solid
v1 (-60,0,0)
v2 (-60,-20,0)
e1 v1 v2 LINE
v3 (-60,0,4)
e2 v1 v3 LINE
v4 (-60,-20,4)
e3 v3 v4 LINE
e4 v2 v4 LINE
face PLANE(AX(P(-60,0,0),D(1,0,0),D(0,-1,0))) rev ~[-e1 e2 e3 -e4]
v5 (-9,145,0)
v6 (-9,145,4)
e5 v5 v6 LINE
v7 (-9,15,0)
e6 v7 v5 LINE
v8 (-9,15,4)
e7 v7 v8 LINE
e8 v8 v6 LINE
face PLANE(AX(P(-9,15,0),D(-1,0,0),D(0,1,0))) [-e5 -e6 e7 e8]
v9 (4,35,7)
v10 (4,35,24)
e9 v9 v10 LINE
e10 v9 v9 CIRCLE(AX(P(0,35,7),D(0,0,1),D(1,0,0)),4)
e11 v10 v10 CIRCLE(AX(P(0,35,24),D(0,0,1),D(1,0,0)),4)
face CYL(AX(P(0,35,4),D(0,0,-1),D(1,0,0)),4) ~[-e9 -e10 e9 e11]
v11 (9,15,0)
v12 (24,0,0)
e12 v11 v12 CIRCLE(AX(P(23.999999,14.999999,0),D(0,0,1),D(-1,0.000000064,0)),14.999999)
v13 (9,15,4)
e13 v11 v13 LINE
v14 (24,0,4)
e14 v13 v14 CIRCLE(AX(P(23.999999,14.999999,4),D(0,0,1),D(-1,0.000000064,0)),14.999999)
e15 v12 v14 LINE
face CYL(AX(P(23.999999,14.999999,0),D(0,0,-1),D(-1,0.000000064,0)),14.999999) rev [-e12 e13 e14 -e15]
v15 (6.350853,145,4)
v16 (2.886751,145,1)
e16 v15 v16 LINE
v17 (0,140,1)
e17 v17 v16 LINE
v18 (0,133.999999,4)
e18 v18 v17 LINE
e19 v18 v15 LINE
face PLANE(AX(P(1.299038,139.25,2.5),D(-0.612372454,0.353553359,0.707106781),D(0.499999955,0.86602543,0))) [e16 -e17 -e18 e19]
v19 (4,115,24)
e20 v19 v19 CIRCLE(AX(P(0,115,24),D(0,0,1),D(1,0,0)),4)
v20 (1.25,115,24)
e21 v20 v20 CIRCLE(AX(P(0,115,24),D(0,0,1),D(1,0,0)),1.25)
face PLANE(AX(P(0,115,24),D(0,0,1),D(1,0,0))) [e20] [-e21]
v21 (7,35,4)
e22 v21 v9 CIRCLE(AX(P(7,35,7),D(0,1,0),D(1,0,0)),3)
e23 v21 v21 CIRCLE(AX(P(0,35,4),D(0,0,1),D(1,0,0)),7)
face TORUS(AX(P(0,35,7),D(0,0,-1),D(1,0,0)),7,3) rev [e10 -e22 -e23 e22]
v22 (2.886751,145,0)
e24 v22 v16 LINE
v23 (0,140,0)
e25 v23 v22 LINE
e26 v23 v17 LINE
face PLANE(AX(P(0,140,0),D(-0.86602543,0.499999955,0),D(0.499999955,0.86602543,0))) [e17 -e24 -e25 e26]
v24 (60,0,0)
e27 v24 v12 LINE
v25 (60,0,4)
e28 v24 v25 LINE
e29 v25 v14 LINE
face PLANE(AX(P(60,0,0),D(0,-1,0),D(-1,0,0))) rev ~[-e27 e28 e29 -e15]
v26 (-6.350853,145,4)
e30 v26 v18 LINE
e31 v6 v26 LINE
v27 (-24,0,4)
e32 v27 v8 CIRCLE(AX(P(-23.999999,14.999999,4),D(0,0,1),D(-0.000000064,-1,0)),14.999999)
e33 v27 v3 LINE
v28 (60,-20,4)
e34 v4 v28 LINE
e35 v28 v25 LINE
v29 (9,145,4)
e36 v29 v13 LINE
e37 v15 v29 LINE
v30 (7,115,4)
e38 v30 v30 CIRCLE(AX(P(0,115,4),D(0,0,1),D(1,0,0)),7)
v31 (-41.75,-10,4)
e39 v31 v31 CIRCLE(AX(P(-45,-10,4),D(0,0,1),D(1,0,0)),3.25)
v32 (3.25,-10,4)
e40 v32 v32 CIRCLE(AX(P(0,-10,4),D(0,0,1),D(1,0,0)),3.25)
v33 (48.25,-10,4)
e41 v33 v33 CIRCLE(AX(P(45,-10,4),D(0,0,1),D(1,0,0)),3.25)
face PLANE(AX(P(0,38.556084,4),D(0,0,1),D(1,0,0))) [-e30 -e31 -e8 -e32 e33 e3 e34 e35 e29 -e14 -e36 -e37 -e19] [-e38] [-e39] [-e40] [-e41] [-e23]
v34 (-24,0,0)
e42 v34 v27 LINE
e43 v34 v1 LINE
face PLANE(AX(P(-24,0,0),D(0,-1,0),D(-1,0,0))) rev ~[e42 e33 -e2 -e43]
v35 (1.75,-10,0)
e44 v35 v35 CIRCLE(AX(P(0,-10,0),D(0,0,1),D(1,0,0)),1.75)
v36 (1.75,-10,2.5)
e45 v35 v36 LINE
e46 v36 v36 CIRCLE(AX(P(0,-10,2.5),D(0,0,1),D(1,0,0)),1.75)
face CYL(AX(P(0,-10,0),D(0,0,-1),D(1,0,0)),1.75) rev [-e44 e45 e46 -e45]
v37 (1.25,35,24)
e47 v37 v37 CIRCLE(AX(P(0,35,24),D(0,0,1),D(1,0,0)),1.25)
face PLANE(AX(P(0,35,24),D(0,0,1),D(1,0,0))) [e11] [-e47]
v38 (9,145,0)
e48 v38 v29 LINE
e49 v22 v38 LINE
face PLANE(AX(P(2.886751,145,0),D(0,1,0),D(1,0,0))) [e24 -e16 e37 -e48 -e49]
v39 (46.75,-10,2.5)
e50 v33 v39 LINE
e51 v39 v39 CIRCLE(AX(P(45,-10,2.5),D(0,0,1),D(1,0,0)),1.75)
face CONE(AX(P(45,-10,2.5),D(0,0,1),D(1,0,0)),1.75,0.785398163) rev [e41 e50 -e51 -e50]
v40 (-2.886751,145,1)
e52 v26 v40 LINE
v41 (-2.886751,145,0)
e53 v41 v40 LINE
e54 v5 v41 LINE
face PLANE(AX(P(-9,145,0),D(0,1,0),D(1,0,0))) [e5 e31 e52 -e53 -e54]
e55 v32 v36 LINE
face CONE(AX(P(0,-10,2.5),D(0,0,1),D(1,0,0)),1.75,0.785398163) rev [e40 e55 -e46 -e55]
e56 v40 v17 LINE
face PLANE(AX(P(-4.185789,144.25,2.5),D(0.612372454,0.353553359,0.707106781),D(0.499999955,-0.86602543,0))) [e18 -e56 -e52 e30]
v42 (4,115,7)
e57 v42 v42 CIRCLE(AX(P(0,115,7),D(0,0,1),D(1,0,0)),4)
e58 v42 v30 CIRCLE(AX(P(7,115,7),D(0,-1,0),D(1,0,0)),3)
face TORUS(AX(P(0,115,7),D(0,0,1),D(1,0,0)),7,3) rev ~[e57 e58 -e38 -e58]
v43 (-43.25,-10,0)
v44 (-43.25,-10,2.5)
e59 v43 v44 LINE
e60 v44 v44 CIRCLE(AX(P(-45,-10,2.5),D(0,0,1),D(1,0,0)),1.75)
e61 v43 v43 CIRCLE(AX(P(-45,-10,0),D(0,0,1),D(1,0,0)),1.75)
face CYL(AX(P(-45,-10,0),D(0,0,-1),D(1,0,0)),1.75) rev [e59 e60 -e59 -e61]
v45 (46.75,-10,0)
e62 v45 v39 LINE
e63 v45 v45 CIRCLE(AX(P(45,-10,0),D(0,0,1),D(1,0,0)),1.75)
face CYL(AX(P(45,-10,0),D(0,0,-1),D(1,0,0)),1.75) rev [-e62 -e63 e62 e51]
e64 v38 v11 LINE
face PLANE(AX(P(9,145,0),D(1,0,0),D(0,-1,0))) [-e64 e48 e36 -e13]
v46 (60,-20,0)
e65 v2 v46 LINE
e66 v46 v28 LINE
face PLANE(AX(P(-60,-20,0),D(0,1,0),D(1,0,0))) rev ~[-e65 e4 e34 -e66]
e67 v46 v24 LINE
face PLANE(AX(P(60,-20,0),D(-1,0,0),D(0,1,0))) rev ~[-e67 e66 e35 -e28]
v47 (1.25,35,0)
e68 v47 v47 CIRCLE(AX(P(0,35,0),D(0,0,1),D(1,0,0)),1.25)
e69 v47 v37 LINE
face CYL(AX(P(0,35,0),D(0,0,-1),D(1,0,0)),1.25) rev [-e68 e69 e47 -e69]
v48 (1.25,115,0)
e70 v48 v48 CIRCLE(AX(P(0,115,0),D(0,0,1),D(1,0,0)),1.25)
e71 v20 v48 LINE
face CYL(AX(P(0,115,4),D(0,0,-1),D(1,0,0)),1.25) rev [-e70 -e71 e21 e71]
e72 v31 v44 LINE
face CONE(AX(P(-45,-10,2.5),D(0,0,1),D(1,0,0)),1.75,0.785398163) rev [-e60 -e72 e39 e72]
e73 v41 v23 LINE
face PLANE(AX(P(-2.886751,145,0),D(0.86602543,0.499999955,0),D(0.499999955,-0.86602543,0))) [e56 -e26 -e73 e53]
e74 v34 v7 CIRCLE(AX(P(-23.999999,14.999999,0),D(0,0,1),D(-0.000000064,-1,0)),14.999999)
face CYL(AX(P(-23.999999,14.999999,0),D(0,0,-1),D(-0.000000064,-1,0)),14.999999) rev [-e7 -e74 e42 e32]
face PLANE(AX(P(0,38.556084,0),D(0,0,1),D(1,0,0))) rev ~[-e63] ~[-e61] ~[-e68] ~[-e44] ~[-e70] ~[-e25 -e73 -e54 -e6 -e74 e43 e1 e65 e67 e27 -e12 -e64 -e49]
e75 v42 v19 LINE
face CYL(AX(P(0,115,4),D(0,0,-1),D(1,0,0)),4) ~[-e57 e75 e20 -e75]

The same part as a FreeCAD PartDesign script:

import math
import FreeCAD as App
import Part
import Sketcher

V = App.Vector
Q = App.Units.Quantity


def edges_at(feature, points):
    """Names of the edges that pass closest to the given points."""
    edges = feature.Shape.Edges
    near = lambda p: min(range(len(edges)), key=lambda i: edges[i].distToShape(Part.Vertex(*p))[0])
    return sorted({f"Edge{near(p) + 1}" for p in points})

doc = App.newDocument("Part")
body = doc.addObject("PartDesign::Body", "Body")

# Sketch on XY plane
sketch1 = body.newObject("Sketcher::SketchObject", "Sketch")
sketch1.AttachmentSupport = (doc.getObject("XY_Plane"), [""])
sketch1.MapMode = "FlatFace"
sketch1.addGeometry(Part.LineSegment(V(-24, 0, 0), V(-60, 0, 0)), False)
sketch1.addGeometry(Part.LineSegment(V(-60, 0, 0), V(-60, -20, 0)), False)
sketch1.addGeometry(Part.LineSegment(V(-60, -20, 0), V(60, -20, 0)), False)
sketch1.addGeometry(Part.LineSegment(V(60, -20, 0), V(60, 0, 0)), False)
sketch1.addGeometry(Part.LineSegment(V(60, 0, 0), V(24, 0, 0)), False)
sketch1.addGeometry(Part.ArcOfCircle(Part.Circle(V(24, 15, 0), V(0, 0, 1), 15), math.radians(180), math.radians(270)), False)
sketch1.addGeometry(Part.LineSegment(V(9, 15, 0), V(9, 145, 0)), False)
sketch1.addGeometry(Part.LineSegment(V(9, 145, 0), V(2.9, 145, 0)), False)
sketch1.addGeometry(Part.LineSegment(V(2.9, 145, 0), V(0, 140, 0)), False)
sketch1.addGeometry(Part.LineSegment(V(0, 140, 0), V(-2.9, 145, 0)), False)
sketch1.addGeometry(Part.LineSegment(V(-2.9, 145, 0), V(-9, 145, 0)), False)
sketch1.addGeometry(Part.LineSegment(V(-9, 145, 0), V(-9, 15, 0)), False)
sketch1.addGeometry(Part.ArcOfCircle(Part.Circle(V(-24, 15, 0), V(0, 0, 1), 15), math.radians(-90), math.radians(0)), False)
sketch1.addGeometry(Part.Circle(V(-45, -10, 0), V(0, 0, 1), 1.8), False)
sketch1.addGeometry(Part.Circle(V(0, -10, 0), V(0, 0, 1), 1.8), False)
sketch1.addGeometry(Part.Circle(V(0, 35, 0), V(0, 0, 1), 1.2), False)
sketch1.addGeometry(Part.Circle(V(45, -10, 0), V(0, 0, 1), 1.8), False)
sketch1.addGeometry(Part.Circle(V(0, 115, 0), V(0, 0, 1), 1.2), False)
sketch1.addConstraint(Sketcher.Constraint("Coincident", 0, 2, 1, 1))
sketch1.addConstraint(Sketcher.Constraint("Coincident", 1, 2, 2, 1))
sketch1.addConstraint(Sketcher.Constraint("Coincident", 2, 2, 3, 1))
sketch1.addConstraint(Sketcher.Constraint("Coincident", 3, 2, 4, 1))
sketch1.addConstraint(Sketcher.Constraint("Tangent", 4, 2, 5, 2))
sketch1.addConstraint(Sketcher.Constraint("Tangent", 5, 1, 6, 1))
sketch1.addConstraint(Sketcher.Constraint("Coincident", 6, 2, 7, 1))
sketch1.addConstraint(Sketcher.Constraint("Coincident", 7, 2, 8, 1))
sketch1.addConstraint(Sketcher.Constraint("Coincident", 8, 2, 9, 1))
sketch1.addConstraint(Sketcher.Constraint("Coincident", 9, 2, 10, 1))
sketch1.addConstraint(Sketcher.Constraint("Coincident", 10, 2, 11, 1))
sketch1.addConstraint(Sketcher.Constraint("Tangent", 11, 2, 12, 2))
sketch1.addConstraint(Sketcher.Constraint("Tangent", 12, 1, 0, 1))
sketch1.addConstraint(Sketcher.Constraint("Horizontal", 0))
sketch1.addConstraint(Sketcher.Constraint("Vertical", 1))
sketch1.addConstraint(Sketcher.Constraint("Horizontal", 2))
sketch1.addConstraint(Sketcher.Constraint("Vertical", 3))
sketch1.addConstraint(Sketcher.Constraint("Horizontal", 4))
sketch1.addConstraint(Sketcher.Constraint("Vertical", 6))
sketch1.addConstraint(Sketcher.Constraint("Horizontal", 7))
sketch1.addConstraint(Sketcher.Constraint("Horizontal", 10))
sketch1.addConstraint(Sketcher.Constraint("Vertical", 11))
sketch1.addConstraint(Sketcher.Constraint("Equal", 5, 12))
sketch1.addConstraint(Sketcher.Constraint("Equal", 13, 14))
sketch1.addConstraint(Sketcher.Constraint("Equal", 14, 16))
sketch1.addConstraint(Sketcher.Constraint("Equal", 15, 17))
sketch1.addConstraint(Sketcher.Constraint("Symmetric", 0, 2, 3, 2, -1, 1))
sketch1.addConstraint(Sketcher.Constraint("Symmetric", 5, 3, 12, 3, -2))
sketch1.addConstraint(Sketcher.Constraint("Symmetric", 13, 3, 16, 3, -2))
sketch1.addConstraint(Sketcher.Constraint("Symmetric", 7, 2, 9, 2, -2))
sketch1.addConstraint(Sketcher.Constraint("PointOnObject", 14, 3, -2))
sketch1.addConstraint(Sketcher.Constraint("PointOnObject", 15, 3, -2))
sketch1.addConstraint(Sketcher.Constraint("PointOnObject", 17, 3, -2))
sketch1.addConstraint(Sketcher.Constraint("PointOnObject", 8, 2, -2))
sketch1.addConstraint(Sketcher.Constraint("Horizontal", 13, 3, 14, 3))
sketch1.addConstraint(Sketcher.Constraint("Radius", 5, 14.999999))
sketch1.addConstraint(Sketcher.Constraint("Diameter", 13, 3.5))
sketch1.addConstraint(Sketcher.Constraint("Diameter", 15, 2.5))
sketch1.addConstraint(Sketcher.Constraint("DistanceX", 0, 2, 0, 1, 36.0))
sketch1.addConstraint(Sketcher.Constraint("DistanceX", 2, 1, 2, 2, 120.0))
sketch1.addConstraint(Sketcher.Constraint("DistanceY", 1, 2, 1, 1, 20.0))
sketch1.addConstraint(Sketcher.Constraint("DistanceY", 6, 1, 6, 2, 130.0))
sketch1.addConstraint(Sketcher.Constraint("Angle", 8, Q("-119.999997 deg")))
sketch1.addConstraint(Sketcher.Constraint("DistanceX", 13, 3, -1, 1, 45.0))
sketch1.addConstraint(Sketcher.Constraint("DistanceY", 13, 3, -1, 1, 10.0))
sketch1.addConstraint(Sketcher.Constraint("DistanceY", -1, 1, 15, 3, 35.0))
sketch1.addConstraint(Sketcher.Constraint("DistanceY", -1, 1, 17, 3, 115.0))
sketch1.addConstraint(Sketcher.Constraint("DistanceY", -1, 1, 8, 2, 140.0))
pad1 = body.newObject("PartDesign::Pad", "Pad")
pad1.Profile = sketch1
pad1.Length = 4

# Sketch on XY plane
sketch2 = body.newObject("Sketcher::SketchObject", "Sketch001")
sketch2.AttachmentSupport = (doc.getObject("XY_Plane"), [""])
sketch2.MapMode = "FlatFace"
sketch2.AttachmentOffset = App.Placement(V(0, 0, 4), App.Rotation())
sketch2.addGeometry(Part.Circle(V(0, 115, 0), V(0, 0, 1), 4), False)
sketch2.addGeometry(Part.Circle(V(0, 115, 0), V(0, 0, 1), 1.2), False)
sketch2.addGeometry(Part.Circle(V(0, 35, 0), V(0, 0, 1), 4), False)
sketch2.addGeometry(Part.Circle(V(0, 35, 0), V(0, 0, 1), 1.2), False)
sketch2.addConstraint(Sketcher.Constraint("Coincident", 1, 3, 0, 3))
sketch2.addConstraint(Sketcher.Constraint("Coincident", 3, 3, 2, 3))
sketch2.addConstraint(Sketcher.Constraint("Equal", 0, 2))
sketch2.addConstraint(Sketcher.Constraint("Equal", 1, 3))
sketch2.addConstraint(Sketcher.Constraint("PointOnObject", 0, 3, -2))
sketch2.addConstraint(Sketcher.Constraint("PointOnObject", 2, 3, -2))
sketch2.addConstraint(Sketcher.Constraint("Diameter", 0, 8.0))
sketch2.addConstraint(Sketcher.Constraint("Diameter", 1, 2.5))
sketch2.addConstraint(Sketcher.Constraint("DistanceY", -1, 1, 0, 3, 115.0))
sketch2.addConstraint(Sketcher.Constraint("DistanceY", -1, 1, 2, 3, 35.0))
pad2 = body.newObject("PartDesign::Pad", "Pad001")
pad2.Profile = sketch2
pad2.Length = 20
doc.recompute()

fillet = body.newObject("PartDesign::Fillet", "Fillet")
fillet.Base = (pad2, edges_at(pad2, [(-4, 115, 4)]))
fillet.Radius = 3
doc.recompute()

fillet2 = body.newObject("PartDesign::Fillet", "Fillet001")
fillet2.Base = (fillet, edges_at(fillet, [(-4, 35, 4)]))
fillet2.Radius = 3
doc.recompute()

chamfer = body.newObject("PartDesign::Chamfer", "Chamfer")
chamfer.Base = (fillet2, edges_at(fillet2, [(43.25, -10, 4), (-1.75, -10, 4), (-46.75, -10, 4)]))
chamfer.Size = 1.5
doc.recompute()

chamfer2 = body.newObject("PartDesign::Chamfer", "Chamfer001")
chamfer2.Base = (chamfer, edges_at(chamfer, [(1.443, 142.5, 4), (-1.443, 142.5, 4)]))
chamfer2.Size = 3

doc.recompute()
